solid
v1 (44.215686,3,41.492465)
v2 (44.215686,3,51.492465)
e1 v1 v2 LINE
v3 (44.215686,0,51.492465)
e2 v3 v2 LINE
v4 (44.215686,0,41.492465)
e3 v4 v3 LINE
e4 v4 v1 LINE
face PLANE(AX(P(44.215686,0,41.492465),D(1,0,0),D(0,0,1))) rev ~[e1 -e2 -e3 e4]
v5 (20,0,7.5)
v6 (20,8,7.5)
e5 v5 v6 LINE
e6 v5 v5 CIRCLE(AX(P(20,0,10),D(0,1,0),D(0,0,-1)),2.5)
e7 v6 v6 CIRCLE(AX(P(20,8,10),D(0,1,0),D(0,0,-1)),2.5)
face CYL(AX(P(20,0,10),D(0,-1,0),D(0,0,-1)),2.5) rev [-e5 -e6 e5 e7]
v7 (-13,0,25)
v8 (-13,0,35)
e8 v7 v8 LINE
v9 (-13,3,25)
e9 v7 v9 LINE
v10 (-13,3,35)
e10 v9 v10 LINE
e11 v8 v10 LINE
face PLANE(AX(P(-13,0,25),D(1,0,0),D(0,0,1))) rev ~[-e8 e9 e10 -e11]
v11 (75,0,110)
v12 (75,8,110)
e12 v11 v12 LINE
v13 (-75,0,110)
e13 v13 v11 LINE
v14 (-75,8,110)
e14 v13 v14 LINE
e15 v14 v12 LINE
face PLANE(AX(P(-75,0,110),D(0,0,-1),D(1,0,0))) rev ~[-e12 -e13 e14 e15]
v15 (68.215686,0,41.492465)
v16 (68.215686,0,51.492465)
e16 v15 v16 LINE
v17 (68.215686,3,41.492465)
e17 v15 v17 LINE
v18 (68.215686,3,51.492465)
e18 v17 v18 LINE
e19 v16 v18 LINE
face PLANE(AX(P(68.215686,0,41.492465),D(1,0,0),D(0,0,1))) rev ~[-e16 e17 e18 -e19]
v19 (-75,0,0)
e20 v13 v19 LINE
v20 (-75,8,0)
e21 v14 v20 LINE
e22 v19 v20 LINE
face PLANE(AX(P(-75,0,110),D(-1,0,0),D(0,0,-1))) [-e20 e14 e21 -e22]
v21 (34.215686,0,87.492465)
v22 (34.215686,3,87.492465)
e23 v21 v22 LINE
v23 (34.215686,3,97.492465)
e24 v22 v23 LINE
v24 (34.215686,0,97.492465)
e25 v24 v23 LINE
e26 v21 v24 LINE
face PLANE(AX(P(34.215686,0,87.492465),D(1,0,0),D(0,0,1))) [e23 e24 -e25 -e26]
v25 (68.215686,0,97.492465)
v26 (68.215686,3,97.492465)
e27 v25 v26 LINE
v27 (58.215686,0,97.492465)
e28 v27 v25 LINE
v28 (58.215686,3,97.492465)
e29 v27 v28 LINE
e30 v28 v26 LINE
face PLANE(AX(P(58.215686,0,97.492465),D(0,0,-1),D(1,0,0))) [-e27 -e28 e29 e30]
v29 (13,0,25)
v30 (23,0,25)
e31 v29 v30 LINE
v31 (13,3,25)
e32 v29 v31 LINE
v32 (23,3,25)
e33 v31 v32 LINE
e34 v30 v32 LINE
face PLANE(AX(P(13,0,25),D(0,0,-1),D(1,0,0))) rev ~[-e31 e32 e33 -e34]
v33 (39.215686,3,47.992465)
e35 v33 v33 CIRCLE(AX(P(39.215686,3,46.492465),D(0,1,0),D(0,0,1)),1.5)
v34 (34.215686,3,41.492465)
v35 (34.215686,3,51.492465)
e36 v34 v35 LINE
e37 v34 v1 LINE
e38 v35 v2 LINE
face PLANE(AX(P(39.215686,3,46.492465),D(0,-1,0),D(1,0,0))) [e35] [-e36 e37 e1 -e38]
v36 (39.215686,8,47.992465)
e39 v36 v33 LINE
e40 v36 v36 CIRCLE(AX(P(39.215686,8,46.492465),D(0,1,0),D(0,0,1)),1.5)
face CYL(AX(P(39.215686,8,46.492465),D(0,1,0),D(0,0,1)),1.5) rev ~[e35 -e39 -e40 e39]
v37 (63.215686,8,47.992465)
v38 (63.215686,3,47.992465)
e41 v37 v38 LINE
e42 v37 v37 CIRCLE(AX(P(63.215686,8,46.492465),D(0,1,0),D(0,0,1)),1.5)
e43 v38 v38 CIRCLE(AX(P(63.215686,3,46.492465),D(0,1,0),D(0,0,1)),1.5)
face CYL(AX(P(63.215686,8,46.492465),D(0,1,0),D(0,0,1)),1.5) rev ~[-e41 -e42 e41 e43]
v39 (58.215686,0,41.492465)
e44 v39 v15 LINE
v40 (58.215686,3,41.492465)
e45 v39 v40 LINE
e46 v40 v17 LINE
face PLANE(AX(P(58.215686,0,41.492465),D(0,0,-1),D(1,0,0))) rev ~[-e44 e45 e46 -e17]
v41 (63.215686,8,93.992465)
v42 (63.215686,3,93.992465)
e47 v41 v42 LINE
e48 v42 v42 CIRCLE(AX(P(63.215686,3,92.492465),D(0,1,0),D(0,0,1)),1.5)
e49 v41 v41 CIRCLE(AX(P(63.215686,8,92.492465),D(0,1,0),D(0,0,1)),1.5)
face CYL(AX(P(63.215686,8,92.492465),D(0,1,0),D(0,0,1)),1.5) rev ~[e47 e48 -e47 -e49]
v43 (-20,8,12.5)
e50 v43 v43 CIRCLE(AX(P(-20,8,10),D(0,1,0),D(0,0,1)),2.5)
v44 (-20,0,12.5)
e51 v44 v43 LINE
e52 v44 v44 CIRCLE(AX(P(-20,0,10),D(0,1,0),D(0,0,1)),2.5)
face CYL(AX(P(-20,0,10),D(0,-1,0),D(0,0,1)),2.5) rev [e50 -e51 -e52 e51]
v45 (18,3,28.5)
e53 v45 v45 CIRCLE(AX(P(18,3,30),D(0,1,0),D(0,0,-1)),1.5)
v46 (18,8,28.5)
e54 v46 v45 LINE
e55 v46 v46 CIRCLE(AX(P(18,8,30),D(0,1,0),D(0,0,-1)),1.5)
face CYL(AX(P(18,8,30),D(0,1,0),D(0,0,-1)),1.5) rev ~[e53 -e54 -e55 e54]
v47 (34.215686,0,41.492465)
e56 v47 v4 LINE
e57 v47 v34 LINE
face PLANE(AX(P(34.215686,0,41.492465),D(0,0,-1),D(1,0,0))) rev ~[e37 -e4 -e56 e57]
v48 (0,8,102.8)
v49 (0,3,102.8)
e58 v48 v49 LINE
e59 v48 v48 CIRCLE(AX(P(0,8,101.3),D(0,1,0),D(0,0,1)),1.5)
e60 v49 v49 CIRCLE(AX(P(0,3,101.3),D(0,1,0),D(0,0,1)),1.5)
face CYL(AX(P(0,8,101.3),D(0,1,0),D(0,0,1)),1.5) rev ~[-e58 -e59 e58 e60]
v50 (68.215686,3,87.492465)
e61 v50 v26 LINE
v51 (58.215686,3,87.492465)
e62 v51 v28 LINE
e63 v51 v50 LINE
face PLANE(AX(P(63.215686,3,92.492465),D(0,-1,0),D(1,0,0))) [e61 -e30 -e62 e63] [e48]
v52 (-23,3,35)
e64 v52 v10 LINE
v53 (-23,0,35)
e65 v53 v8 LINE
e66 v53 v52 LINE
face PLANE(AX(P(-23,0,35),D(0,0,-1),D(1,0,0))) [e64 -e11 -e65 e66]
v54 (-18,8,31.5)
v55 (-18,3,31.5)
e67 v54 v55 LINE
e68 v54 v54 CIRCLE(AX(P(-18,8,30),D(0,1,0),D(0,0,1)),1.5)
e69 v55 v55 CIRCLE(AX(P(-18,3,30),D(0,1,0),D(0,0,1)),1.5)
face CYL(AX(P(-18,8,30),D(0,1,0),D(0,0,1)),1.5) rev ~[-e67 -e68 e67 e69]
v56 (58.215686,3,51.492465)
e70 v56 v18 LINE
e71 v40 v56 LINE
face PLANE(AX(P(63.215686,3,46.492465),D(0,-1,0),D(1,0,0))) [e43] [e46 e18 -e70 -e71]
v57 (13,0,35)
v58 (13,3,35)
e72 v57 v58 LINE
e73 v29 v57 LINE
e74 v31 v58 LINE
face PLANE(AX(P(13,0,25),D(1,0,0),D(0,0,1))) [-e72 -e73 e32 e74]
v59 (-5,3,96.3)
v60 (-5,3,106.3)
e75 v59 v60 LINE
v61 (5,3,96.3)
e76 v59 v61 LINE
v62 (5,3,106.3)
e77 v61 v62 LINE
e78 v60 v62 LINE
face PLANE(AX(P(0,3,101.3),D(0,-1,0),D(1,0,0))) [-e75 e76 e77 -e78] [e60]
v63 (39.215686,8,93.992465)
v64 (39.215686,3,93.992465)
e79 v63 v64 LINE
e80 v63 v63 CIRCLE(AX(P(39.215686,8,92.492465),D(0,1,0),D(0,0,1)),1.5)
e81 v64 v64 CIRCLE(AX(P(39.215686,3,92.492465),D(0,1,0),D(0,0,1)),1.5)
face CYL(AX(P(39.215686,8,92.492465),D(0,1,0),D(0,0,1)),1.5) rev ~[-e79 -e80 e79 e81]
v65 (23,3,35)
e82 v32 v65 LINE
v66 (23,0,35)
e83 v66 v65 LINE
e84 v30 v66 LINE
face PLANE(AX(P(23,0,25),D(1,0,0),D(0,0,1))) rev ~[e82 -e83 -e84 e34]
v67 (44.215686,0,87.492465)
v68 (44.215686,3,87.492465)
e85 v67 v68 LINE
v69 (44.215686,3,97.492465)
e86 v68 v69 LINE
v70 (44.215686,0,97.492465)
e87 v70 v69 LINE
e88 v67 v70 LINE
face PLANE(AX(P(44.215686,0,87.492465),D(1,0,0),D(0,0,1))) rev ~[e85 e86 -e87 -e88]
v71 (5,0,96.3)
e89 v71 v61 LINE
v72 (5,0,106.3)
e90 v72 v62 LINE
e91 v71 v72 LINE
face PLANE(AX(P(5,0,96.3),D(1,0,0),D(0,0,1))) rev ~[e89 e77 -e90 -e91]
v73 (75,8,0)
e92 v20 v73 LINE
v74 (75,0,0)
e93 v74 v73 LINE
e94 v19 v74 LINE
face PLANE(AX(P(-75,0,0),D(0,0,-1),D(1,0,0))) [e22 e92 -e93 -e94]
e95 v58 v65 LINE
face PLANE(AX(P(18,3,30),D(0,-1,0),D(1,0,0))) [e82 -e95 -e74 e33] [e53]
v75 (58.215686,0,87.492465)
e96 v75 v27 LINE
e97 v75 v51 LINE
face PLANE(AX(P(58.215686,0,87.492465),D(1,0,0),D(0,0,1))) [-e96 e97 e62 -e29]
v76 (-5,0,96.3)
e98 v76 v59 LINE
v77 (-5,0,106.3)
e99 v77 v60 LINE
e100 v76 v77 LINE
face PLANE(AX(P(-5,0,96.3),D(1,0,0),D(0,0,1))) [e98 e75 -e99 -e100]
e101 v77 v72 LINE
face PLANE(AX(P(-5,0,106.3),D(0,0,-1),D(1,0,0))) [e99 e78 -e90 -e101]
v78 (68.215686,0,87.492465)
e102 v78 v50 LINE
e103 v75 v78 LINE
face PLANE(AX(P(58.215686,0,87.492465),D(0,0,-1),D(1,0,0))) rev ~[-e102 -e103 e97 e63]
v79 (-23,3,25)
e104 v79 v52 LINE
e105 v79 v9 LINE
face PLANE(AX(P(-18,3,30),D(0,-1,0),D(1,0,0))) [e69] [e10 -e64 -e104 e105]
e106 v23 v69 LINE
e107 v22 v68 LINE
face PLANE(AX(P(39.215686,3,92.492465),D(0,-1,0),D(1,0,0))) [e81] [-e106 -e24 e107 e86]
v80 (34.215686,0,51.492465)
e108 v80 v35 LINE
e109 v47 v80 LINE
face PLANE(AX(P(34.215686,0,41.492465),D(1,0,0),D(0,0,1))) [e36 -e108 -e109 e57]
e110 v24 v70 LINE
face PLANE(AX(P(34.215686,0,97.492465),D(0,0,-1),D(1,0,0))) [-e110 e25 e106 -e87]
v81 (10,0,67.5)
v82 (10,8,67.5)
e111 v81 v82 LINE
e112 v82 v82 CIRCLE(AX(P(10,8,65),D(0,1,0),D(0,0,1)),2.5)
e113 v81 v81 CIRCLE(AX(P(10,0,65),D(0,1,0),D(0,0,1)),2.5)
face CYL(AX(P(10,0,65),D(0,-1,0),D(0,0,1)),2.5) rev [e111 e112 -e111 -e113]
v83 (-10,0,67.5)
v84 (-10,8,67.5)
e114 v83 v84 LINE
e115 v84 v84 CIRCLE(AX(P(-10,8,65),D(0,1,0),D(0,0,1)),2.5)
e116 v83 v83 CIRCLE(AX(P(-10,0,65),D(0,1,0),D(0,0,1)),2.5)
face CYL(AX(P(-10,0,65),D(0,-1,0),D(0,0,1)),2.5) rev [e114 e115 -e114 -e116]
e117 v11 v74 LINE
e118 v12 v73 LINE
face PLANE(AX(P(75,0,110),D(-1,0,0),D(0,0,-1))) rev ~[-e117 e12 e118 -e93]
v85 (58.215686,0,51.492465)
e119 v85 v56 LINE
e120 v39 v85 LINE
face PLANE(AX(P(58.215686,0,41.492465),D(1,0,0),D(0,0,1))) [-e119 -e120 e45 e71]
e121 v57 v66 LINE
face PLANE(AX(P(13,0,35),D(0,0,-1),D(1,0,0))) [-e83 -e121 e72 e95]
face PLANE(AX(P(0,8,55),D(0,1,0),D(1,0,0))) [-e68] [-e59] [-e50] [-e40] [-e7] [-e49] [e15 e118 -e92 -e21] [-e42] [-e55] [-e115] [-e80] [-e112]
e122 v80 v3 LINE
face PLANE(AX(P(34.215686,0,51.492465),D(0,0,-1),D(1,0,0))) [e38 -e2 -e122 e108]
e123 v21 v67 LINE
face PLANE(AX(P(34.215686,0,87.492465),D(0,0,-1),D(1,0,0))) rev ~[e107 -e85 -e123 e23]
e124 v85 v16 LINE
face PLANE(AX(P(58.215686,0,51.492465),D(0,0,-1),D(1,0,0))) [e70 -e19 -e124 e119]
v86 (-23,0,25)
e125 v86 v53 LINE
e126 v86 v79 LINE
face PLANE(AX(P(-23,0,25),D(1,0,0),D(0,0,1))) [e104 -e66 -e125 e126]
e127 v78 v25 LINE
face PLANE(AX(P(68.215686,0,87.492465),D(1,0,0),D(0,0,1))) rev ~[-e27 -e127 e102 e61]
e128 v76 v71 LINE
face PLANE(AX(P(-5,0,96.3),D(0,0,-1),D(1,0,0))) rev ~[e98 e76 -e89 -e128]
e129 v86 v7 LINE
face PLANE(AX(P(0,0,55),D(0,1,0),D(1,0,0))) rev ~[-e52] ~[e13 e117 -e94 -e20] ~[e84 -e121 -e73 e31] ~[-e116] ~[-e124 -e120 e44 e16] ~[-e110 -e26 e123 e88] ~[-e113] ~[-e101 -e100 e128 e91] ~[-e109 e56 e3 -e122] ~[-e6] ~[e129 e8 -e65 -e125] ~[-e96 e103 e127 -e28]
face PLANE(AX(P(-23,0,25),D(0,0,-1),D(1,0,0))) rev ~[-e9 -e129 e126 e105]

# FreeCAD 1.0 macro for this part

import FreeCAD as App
import Part
import Sketcher

V = App.Vector
Q = App.Units.Quantity

doc = App.newDocument("Part")
body = doc.addObject("PartDesign::Body", "Body")

sketch1 = body.newObject("Sketcher::SketchObject", "Sketch")
sketch1.AttachmentSupport = (doc.getObject("XZ_Plane"), [""])
sketch1.MapMode = "FlatFace"
sketch1.addGeometry([
    Part.LineSegment(V(-75, 0, 0), V(-75, 110, 0)),
    Part.LineSegment(V(-75, 110, 0), V(75, 110, 0)),
    Part.LineSegment(V(75, 110, 0), V(75, 0, 0)),
    Part.LineSegment(V(75, 0, 0), V(-75, 0, 0)),
    Part.Circle(V(-10, 65, 0), V(0, 0, 1), 2.5),
    Part.Circle(V(10, 65, 0), V(0, 0, 1), 2.5),
    Part.Circle(V(-20, 10, 0), V(0, 0, 1), 2.5),
    Part.Circle(V(20, 10, 0), V(0, 0, 1), 2.5),
], False)
sketch1.addConstraint([
    Sketcher.Constraint("Coincident", 0, 2, 1, 1),
    Sketcher.Constraint("Coincident", 1, 2, 2, 1),
    Sketcher.Constraint("Coincident", 2, 2, 3, 1),
    Sketcher.Constraint("Coincident", 3, 2, 0, 1),
    Sketcher.Constraint("Vertical", 0),
    Sketcher.Constraint("Horizontal", 1),
    Sketcher.Constraint("Vertical", 2),
    Sketcher.Constraint("Horizontal", 3),
    Sketcher.Constraint("Equal", 4, 5),
    Sketcher.Constraint("Equal", 5, 6),
    Sketcher.Constraint("Equal", 6, 7),
    Sketcher.Constraint("Symmetric", 2, 2, 3, 2, -1, 1),
    Sketcher.Constraint("Symmetric", 4, 3, 5, 3, -2),
    Sketcher.Constraint("Symmetric", 6, 3, 7, 3, -2),
    Sketcher.Constraint("Diameter", 4, Q("5 mm")),
    Sketcher.Constraint("DistanceX", 1, 1, 1, 2, Q("150 mm")),
    Sketcher.Constraint("DistanceY", 0, 1, 0, 2, Q("110 mm")),
    Sketcher.Constraint("DistanceX", 4, 3, -1, 1, Q("10 mm")),
    Sketcher.Constraint("DistanceY", -1, 1, 4, 3, Q("65 mm")),
    Sketcher.Constraint("DistanceX", 6, 3, -1, 1, Q("20 mm")),
    Sketcher.Constraint("DistanceY", -1, 1, 6, 3, Q("10 mm")),
])
pad1 = body.newObject("PartDesign::Pad", "Pad")
pad1.Profile = sketch1
pad1.Length = 8
pad1.Reversed = True

sketch2 = body.newObject("Sketcher::SketchObject", "Sketch001")
sketch2.AttachmentSupport = (doc.getObject("XZ_Plane"), [""])
sketch2.MapMode = "FlatFace"
sketch2.AttachmentOffset = App.Placement(V(0, 0, -8), App.Rotation())
sketch2.addGeometry([
    Part.Circle(V(-18, 30, 0), V(0, 0, 1), 1.5),
    Part.Circle(V(18, 30, 0), V(0, 0, 1), 1.5),
    Part.Circle(V(0, 101.3, 0), V(0, 0, 1), 1.5),
], False)
sketch2.addConstraint([
    Sketcher.Constraint("Equal", 0, 1),
    Sketcher.Constraint("Equal", 1, 2),
    Sketcher.Constraint("Symmetric", 0, 3, 1, 3, -2),
    Sketcher.Constraint("PointOnObject", 2, 3, -2),
    Sketcher.Constraint("Diameter", 0, Q("3 mm")),
    Sketcher.Constraint("DistanceX", 0, 3, -1, 1, Q("18 mm")),
    Sketcher.Constraint("DistanceY", -1, 1, 0, 3, Q("30 mm")),
    Sketcher.Constraint("DistanceY", -1, 1, 2, 3, Q("101.3 mm")),
])
pocket1 = body.newObject("PartDesign::Pocket", "Pocket")
pocket1.Profile = sketch2
pocket1.Length = 8
pocket1.Reversed = True

sketch3 = body.newObject("Sketcher::SketchObject", "Sketch002")
sketch3.AttachmentSupport = (doc.getObject("XZ_Plane"), [""])
sketch3.MapMode = "FlatFace"
sketch3.AttachmentOffset = App.Placement(V(0, 0, -8), App.Rotation())
sketch3.addGeometry([
    Part.Circle(V(39.2, 46.5, 0), V(0, 0, 1), 1.5),
    Part.Circle(V(63.2, 46.5, 0), V(0, 0, 1), 1.5),
    Part.Circle(V(39.2, 92.5, 0), V(0, 0, 1), 1.5),
    Part.Circle(V(63.2, 92.5, 0), V(0, 0, 1), 1.5),
], False)
sketch3.addConstraint([
    Sketcher.Constraint("Equal", 0, 1),
    Sketcher.Constraint("Equal", 1, 2),
    Sketcher.Constraint("Equal", 2, 3),
    Sketcher.Constraint("Horizontal", 0, 3, 1, 3),
    Sketcher.Constraint("Horizontal", 2, 3, 3, 3),
    Sketcher.Constraint("Vertical", 0, 3, 2, 3),
    Sketcher.Constraint("Vertical", 1, 3, 3, 3),
    Sketcher.Constraint("Diameter", 0, Q("3 mm")),
    Sketcher.Constraint("DistanceX", 0, 3, 1, 3, Q("24 mm")),
    Sketcher.Constraint("DistanceY", 0, 3, 2, 3, Q("46 mm")),
    Sketcher.Constraint("DistanceX", -1, 1, 0, 3, Q("39.215686 mm")),
    Sketcher.Constraint("DistanceY", -1, 1, 0, 3, Q("46.492465 mm")),
])
pocket2 = body.newObject("PartDesign::Pocket", "Pocket001")
pocket2.Profile = sketch3
pocket2.Length = 8
pocket2.Reversed = True

sketch4 = body.newObject("Sketcher::SketchObject", "Sketch003")
sketch4.AttachmentSupport = (doc.getObject("XZ_Plane"), [""])
sketch4.MapMode = "FlatFace"
sketch4.addGeometry([
    Part.LineSegment(V(-5, 106, 0), V(-5, 96, 0)),
    Part.LineSegment(V(-5, 96, 0), V(5, 96, 0)),
    Part.LineSegment(V(5, 96, 0), V(5, 106, 0)),
    Part.LineSegment(V(5, 106, 0), V(-5, 106, 0)),
    Part.LineSegment(V(34, 97, 0), V(34, 87, 0)),
    Part.LineSegment(V(34, 87, 0), V(44, 87, 0)),
    Part.LineSegment(V(44, 87, 0), V(44, 97, 0)),
    Part.LineSegment(V(44, 97, 0), V(34, 97, 0)),
    Part.LineSegment(V(58, 97, 0), V(58, 87, 0)),
    Part.LineSegment(V(58, 87, 0), V(68, 87, 0)),
    Part.LineSegment(V(68, 87, 0), V(68, 97, 0)),
    Part.LineSegment(V(68, 97, 0), V(58, 97, 0)),
    Part.LineSegment(V(58, 51, 0), V(58, 41, 0)),
    Part.LineSegment(V(58, 41, 0), V(68, 41, 0)),
    Part.LineSegment(V(68, 41, 0), V(68, 51, 0)),
    Part.LineSegment(V(68, 51, 0), V(58, 51, 0)),
    Part.LineSegment(V(34, 51, 0), V(34, 41, 0)),
    Part.LineSegment(V(34, 41, 0), V(44, 41, 0)),
    Part.LineSegment(V(44, 41, 0), V(44, 51, 0)),
    Part.LineSegment(V(44, 51, 0), V(34, 51, 0)),
    Part.LineSegment(V(-23, 35, 0), V(-23, 25, 0)),
    Part.LineSegment(V(-23, 25, 0), V(-13, 25, 0)),
    Part.LineSegment(V(-13, 25, 0), V(-13, 35, 0)),
    Part.LineSegment(V(-13, 35, 0), V(-23, 35, 0)),
    Part.LineSegment(V(13, 35, 0), V(13, 25, 0)),
    Part.LineSegment(V(13, 25, 0), V(23, 25, 0)),
    Part.LineSegment(V(23, 25, 0), V(23, 35, 0)),
    Part.LineSegment(V(23, 35, 0), V(13, 35, 0)),
], False)
sketch4.addConstraint([
    Sketcher.Constraint("Coincident", 0, 2, 1, 1),
    Sketcher.Constraint("Coincident", 1, 2, 2, 1),
    Sketcher.Constraint("Coincident", 2, 2, 3, 1),
    Sketcher.Constraint("Coincident", 3, 2, 0, 1),
    Sketcher.Constraint("Coincident", 4, 2, 5, 1),
    Sketcher.Constraint("Coincident", 5, 2, 6, 1),
    Sketcher.Constraint("Coincident", 6, 2, 7, 1),
    Sketcher.Constraint("Coincident", 7, 2, 4, 1),
    Sketcher.Constraint("Coincident", 8, 2, 9, 1),
    Sketcher.Constraint("Coincident", 9, 2, 10, 1),
    Sketcher.Constraint("Coincident", 10, 2, 11, 1),
    Sketcher.Constraint("Coincident", 11, 2, 8, 1),
    Sketcher.Constraint("Coincident", 12, 2, 13, 1),
    Sketcher.Constraint("Coincident", 13, 2, 14, 1),
    Sketcher.Constraint("Coincident", 14, 2, 15, 1),
    Sketcher.Constraint("Coincident", 15, 2, 12, 1),
    Sketcher.Constraint("Coincident", 16, 2, 17, 1),
    Sketcher.Constraint("Coincident", 17, 2, 18, 1),
    Sketcher.Constraint("Coincident", 18, 2, 19, 1),
    Sketcher.Constraint("Coincident", 19, 2, 16, 1),
    Sketcher.Constraint("Coincident", 20, 2, 21, 1),
    Sketcher.Constraint("Coincident", 21, 2, 22, 1),
    Sketcher.Constraint("Coincident", 22, 2, 23, 1),
    Sketcher.Constraint("Coincident", 23, 2, 20, 1),
    Sketcher.Constraint("Coincident", 24, 2, 25, 1),
    Sketcher.Constraint("Coincident", 25, 2, 26, 1),
    Sketcher.Constraint("Coincident", 26, 2, 27, 1),
    Sketcher.Constraint("Coincident", 27, 2, 24, 1),
    Sketcher.Constraint("Vertical", 0),
    Sketcher.Constraint("Horizontal", 1),
    Sketcher.Constraint("Vertical", 2),
    Sketcher.Constraint("Horizontal", 3),
    Sketcher.Constraint("Vertical", 4),
    Sketcher.Constraint("Horizontal", 5),
    Sketcher.Constraint("Vertical", 6),
    Sketcher.Constraint("Horizontal", 7),
    Sketcher.Constraint("Vertical", 8),
    Sketcher.Constraint("Horizontal", 9),
    Sketcher.Constraint("Vertical", 10),
    Sketcher.Constraint("Horizontal", 11),
    Sketcher.Constraint("Vertical", 12),
    Sketcher.Constraint("Horizontal", 13),
    Sketcher.Constraint("Vertical", 14),
    Sketcher.Constraint("Horizontal", 15),
    Sketcher.Constraint("Vertical", 16),
    Sketcher.Constraint("Horizontal", 17),
    Sketcher.Constraint("Vertical", 18),
    Sketcher.Constraint("Horizontal", 19),
    Sketcher.Constraint("Vertical", 20),
    Sketcher.Constraint("Horizontal", 21),
    Sketcher.Constraint("Vertical", 22),
    Sketcher.Constraint("Horizontal", 23),
    Sketcher.Constraint("Vertical", 24),
    Sketcher.Constraint("Horizontal", 25),
    Sketcher.Constraint("Vertical", 26),
    Sketcher.Constraint("Horizontal", 27),
    Sketcher.Constraint("Symmetric", 21, 2, 24, 2, -2),
    Sketcher.Constraint("Symmetric", 23, 2, 26, 2, -2),
    Sketcher.Constraint("Horizontal", 5, 2, 8, 2),
    Sketcher.Constraint("Horizontal", 7, 2, 10, 2),
    Sketcher.Constraint("Horizontal", 13, 2, 16, 2),
    Sketcher.Constraint("Horizontal", 15, 2, 18, 2),
    Sketcher.Constraint("Vertical", 11, 2, 12, 2),
    Sketcher.Constraint("Vertical", 10, 2, 13, 2),
    Sketcher.Constraint("Vertical", 7, 2, 16, 2),
    Sketcher.Constraint("Vertical", 6, 2, 17, 2),
    Sketcher.Constraint("Equal", 3, 5),
    Sketcher.Constraint("Equal", 7, 9),
    Sketcher.Constraint("Equal", 19, 21),
    Sketcher.Constraint("Equal", 27, 0),
    Sketcher.Constraint("Equal", 2, 4),
    Sketcher.Constraint("Equal", 10, 12),
    Sketcher.Constraint("Equal", 18, 20),
    Sketcher.Constraint("DistanceX", 1, 1, 1, 2, Q("10 mm")),
    Sketcher.Constraint("DistanceX", 0, 2, -1, 1, Q("5 mm")),
    Sketcher.Constraint("DistanceX", 20, 2, -1, 1, Q("23 mm")),
    Sketcher.Constraint("DistanceY", -1, 1, 20, 2, Q("25 mm")),
    Sketcher.Constraint("DistanceX", 5, 2, 8, 2, Q("14 mm")),
    Sketcher.Constraint("DistanceY", 12, 2, 8, 2, Q("46 mm")),
    Sketcher.Constraint("DistanceY", -1, 1, 0, 2, Q("96.3 mm")),
    Sketcher.Constraint("DistanceX", -1, 1, 4, 2, Q("34.215686 mm")),
    Sketcher.Constraint("DistanceY", -1, 1, 4, 2, Q("87.492465 mm")),
])
pocket3 = body.newObject("PartDesign::Pocket", "Pocket002")
pocket3.Profile = sketch4
pocket3.Length = 3

doc.recompute()
